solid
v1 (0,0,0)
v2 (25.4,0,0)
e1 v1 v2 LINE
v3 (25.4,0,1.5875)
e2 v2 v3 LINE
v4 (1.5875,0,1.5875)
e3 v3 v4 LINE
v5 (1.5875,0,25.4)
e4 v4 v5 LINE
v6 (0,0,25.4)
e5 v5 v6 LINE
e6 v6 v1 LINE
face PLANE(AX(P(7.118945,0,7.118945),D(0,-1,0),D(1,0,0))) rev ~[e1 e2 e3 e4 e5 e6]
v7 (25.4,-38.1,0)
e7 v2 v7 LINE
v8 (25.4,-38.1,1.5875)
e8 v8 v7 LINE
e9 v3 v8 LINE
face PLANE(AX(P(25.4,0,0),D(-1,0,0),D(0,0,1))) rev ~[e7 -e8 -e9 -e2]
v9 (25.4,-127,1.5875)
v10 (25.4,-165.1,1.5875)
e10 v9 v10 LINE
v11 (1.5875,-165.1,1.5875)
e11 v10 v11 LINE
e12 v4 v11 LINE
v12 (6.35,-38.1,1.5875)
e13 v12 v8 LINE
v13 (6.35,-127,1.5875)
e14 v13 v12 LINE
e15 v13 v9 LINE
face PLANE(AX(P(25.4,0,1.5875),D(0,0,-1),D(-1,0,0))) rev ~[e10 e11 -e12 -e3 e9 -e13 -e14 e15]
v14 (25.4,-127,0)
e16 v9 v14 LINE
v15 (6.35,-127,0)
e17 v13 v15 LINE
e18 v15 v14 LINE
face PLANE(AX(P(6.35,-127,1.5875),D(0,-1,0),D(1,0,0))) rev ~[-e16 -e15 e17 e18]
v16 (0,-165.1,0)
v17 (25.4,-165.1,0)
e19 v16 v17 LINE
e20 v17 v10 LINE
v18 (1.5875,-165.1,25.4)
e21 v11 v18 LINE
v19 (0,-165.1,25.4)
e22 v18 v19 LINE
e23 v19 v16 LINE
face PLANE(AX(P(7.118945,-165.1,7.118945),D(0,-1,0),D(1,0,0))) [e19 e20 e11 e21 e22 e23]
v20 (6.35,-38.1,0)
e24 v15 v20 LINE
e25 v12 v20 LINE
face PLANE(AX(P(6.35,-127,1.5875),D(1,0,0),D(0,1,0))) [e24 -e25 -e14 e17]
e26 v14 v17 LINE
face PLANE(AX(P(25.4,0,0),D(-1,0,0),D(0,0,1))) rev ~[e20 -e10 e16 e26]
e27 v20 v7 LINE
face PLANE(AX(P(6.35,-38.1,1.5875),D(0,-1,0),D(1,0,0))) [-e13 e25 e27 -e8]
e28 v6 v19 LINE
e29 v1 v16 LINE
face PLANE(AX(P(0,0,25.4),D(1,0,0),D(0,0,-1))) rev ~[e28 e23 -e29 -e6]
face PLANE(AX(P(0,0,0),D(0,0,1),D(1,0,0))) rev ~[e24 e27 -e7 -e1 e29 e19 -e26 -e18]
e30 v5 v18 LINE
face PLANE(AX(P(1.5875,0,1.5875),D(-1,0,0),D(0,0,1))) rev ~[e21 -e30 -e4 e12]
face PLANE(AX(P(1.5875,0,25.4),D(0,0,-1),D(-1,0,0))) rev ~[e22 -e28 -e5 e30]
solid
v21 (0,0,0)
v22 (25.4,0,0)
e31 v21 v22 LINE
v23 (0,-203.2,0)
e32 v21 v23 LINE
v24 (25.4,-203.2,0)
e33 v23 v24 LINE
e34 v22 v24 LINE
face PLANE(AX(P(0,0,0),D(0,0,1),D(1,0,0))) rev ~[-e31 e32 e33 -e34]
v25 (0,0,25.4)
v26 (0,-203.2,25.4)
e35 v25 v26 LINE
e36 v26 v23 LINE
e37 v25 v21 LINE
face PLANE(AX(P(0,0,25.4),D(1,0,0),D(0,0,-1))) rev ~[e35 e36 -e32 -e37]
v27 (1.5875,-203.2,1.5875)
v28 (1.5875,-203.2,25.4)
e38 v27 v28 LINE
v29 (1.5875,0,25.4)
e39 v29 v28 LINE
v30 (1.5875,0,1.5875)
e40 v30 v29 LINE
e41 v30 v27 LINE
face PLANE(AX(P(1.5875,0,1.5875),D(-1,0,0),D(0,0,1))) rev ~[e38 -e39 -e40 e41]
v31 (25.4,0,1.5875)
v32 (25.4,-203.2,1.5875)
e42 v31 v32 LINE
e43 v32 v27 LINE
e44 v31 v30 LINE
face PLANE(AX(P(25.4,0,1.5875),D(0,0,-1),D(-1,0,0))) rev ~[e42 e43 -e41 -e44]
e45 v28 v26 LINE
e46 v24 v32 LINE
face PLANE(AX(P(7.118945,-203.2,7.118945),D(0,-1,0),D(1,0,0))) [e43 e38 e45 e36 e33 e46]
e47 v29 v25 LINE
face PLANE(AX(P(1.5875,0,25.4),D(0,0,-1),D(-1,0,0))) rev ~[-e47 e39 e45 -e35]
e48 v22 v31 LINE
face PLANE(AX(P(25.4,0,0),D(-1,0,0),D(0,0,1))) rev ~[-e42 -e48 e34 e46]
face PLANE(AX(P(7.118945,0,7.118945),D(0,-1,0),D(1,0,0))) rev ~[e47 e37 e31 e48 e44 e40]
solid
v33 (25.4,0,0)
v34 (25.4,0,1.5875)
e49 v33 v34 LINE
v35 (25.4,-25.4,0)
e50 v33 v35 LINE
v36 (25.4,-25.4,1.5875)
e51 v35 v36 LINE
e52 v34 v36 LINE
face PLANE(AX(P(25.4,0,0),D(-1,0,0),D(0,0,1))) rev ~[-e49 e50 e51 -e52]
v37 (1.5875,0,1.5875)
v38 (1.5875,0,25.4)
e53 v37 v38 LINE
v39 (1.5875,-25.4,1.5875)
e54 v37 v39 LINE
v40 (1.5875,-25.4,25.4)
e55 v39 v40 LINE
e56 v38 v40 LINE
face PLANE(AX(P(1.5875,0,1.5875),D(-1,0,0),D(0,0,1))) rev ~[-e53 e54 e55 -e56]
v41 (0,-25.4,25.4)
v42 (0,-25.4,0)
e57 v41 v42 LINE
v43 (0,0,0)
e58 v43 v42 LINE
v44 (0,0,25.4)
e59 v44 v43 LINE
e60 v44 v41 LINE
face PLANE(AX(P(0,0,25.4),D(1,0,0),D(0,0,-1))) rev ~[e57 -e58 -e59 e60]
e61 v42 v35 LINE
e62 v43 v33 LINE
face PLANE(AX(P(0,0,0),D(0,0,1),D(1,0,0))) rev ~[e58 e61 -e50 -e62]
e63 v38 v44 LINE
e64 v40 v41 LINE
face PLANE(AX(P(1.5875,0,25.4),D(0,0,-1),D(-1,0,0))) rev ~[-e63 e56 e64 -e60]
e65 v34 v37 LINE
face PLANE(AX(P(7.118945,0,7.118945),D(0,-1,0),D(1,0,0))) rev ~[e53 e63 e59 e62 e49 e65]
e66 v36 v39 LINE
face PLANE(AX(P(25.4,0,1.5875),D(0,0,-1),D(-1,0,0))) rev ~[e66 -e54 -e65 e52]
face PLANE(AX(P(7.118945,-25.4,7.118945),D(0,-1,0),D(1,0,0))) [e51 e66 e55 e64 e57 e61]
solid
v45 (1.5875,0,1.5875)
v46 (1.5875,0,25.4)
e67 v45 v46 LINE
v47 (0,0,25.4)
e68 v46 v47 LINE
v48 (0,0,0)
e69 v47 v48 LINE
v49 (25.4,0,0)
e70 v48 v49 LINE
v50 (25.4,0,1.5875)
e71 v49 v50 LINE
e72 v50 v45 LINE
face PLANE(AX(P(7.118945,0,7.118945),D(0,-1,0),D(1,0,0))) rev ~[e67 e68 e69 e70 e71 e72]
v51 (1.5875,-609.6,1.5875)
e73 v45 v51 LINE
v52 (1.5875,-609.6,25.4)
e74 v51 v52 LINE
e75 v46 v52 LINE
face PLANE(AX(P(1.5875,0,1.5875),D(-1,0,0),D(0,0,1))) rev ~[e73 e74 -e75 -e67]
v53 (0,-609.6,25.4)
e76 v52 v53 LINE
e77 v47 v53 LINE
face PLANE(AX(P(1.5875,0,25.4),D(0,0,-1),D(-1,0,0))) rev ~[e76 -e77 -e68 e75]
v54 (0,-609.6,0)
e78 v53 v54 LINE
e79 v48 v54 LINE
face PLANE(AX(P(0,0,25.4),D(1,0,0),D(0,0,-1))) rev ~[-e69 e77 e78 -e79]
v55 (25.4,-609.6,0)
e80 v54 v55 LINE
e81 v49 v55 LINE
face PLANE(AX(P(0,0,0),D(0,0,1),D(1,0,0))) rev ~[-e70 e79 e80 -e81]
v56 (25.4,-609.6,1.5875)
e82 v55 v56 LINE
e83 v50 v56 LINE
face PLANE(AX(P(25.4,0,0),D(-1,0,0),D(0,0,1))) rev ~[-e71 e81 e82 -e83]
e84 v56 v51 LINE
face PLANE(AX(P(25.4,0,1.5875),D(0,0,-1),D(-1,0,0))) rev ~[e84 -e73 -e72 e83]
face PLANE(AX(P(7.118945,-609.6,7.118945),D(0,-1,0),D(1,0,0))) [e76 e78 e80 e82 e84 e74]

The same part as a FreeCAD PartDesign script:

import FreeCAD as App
import Part
import Sketcher
Q = App.Units.Quantity


def add_polygon(sketch, points):
    """Adds a closed chain of lines whose ends are joined by coincident constraints."""
    first, n = sketch.GeometryCount, len(points)
    for a, b in zip(points, points[1:] + points[:1]):
        sketch.addGeometry(Part.LineSegment(App.Vector(*a, 0), App.Vector(*b, 0)), False)
    for i in range(n):
        sketch.addConstraint(Sketcher.Constraint("Coincident", first + i, 2, first + (i + 1) % n, 1))

doc = App.newDocument("Part")
body = doc.addObject("PartDesign::Body", "Body")

sketch1 = doc.addObject("Sketcher::SketchObject", "Sketch")
body.addObject(sketch1)
sketch1.AttachmentSupport = (doc.XZ_Plane, [""])
sketch1.MapMode = "FlatFace"
add_polygon(sketch1, [(0, 25.4), (0, 0), (25.4, 0), (25.4, 1.6), (1.6, 1.6), (1.6, 25.4)])
sketch1.addConstraint(Sketcher.Constraint("Vertical", 0))
sketch1.addConstraint(Sketcher.Constraint("Horizontal", 1))
sketch1.addConstraint(Sketcher.Constraint("Vertical", 2))
sketch1.addConstraint(Sketcher.Constraint("Horizontal", 3))
sketch1.addConstraint(Sketcher.Constraint("Vertical", 4))
sketch1.addConstraint(Sketcher.Constraint("Horizontal", 5))
sketch1.addConstraint(Sketcher.Constraint("Coincident", 0, 2, -1, 1))
sketch1.addConstraint(Sketcher.Constraint("Equal", 1, 0))
sketch1.addConstraint(Sketcher.Constraint("Equal", 5, 2))
sketch1.addConstraint(Sketcher.Constraint("DistanceX", 1, 1, 1, 2, Q("1 in")))
sketch1.addConstraint(Sketcher.Constraint("DistanceX", 3, 2, 3, 1, Q("0.9375 in")))
pad1 = doc.addObject("PartDesign::Pad", "Pad")
body.addObject(pad1)
pad1.Profile = sketch1
pad1.Length = Q("8 in")
body2 = doc.addObject("PartDesign::Body", "Body001")

sketch2 = doc.addObject("Sketcher::SketchObject", "Sketch001")
body2.addObject(sketch2)
sketch2.AttachmentSupport = (doc.getObject("XZ_Plane001"), [""])
sketch2.MapMode = "FlatFace"
add_polygon(sketch2, [(0, 25.4), (0, 0), (25.4, 0), (25.4, 1.6), (1.6, 1.6), (1.6, 25.4)])
sketch2.addConstraint(Sketcher.Constraint("Vertical", 0))
sketch2.addConstraint(Sketcher.Constraint("Horizontal", 1))
sketch2.addConstraint(Sketcher.Constraint("Vertical", 2))
sketch2.addConstraint(Sketcher.Constraint("Horizontal", 3))
sketch2.addConstraint(Sketcher.Constraint("Vertical", 4))
sketch2.addConstraint(Sketcher.Constraint("Horizontal", 5))
sketch2.addConstraint(Sketcher.Constraint("Coincident", 0, 2, -1, 1))
sketch2.addConstraint(Sketcher.Constraint("Equal", 1, 0))
sketch2.addConstraint(Sketcher.Constraint("Equal", 5, 2))
sketch2.addConstraint(Sketcher.Constraint("DistanceX", 1, 1, 1, 2, Q("1 in")))
sketch2.addConstraint(Sketcher.Constraint("DistanceX", 3, 2, 3, 1, Q("0.9375 in")))
pad2 = doc.addObject("PartDesign::Pad", "Pad001")
body2.addObject(pad2)
pad2.Profile = sketch2
pad2.Length = Q("24 in")
body3 = doc.addObject("PartDesign::Body", "Body002")

sketch3 = doc.addObject("Sketcher::SketchObject", "Sketch002")
body3.addObject(sketch3)
sketch3.AttachmentSupport = (doc.getObject("XZ_Plane002"), [""])
sketch3.MapMode = "FlatFace"
add_polygon(sketch3, [(0, 25.4), (0, 0), (25.4, 0), (25.4, 1.6), (1.6, 1.6), (1.6, 25.4)])
sketch3.addConstraint(Sketcher.Constraint("Vertical", 0))
sketch3.addConstraint(Sketcher.Constraint("Horizontal", 1))
sketch3.addConstraint(Sketcher.Constraint("Vertical", 2))
sketch3.addConstraint(Sketcher.Constraint("Horizontal", 3))
sketch3.addConstraint(Sketcher.Constraint("Vertical", 4))
sketch3.addConstraint(Sketcher.Constraint("Horizontal", 5))
sketch3.addConstraint(Sketcher.Constraint("Coincident", 0, 2, -1, 1))
sketch3.addConstraint(Sketcher.Constraint("Equal", 1, 0))
sketch3.addConstraint(Sketcher.Constraint("Equal", 5, 2))
sketch3.addConstraint(Sketcher.Constraint("DistanceX", 1, 1, 1, 2, Q("1 in")))
sketch3.addConstraint(Sketcher.Constraint("DistanceX", 3, 2, 3, 1, Q("0.9375 in")))
pad3 = doc.addObject("PartDesign::Pad", "Pad002")
body3.addObject(pad3)
pad3.Profile = sketch3
pad3.Length = Q("1 in")
body4 = doc.addObject("PartDesign::Body", "Body003")

sketch4 = doc.addObject("Sketcher::SketchObject", "Sketch003")
body4.addObject(sketch4)
sketch4.AttachmentSupport = (doc.getObject("XZ_Plane003"), [""])
sketch4.MapMode = "FlatFace"
add_polygon(sketch4, [(0, 25.4), (0, 0), (25.4, 0), (25.4, 1.6), (1.6, 1.6), (1.6, 25.4)])
sketch4.addConstraint(Sketcher.Constraint("Vertical", 0))
sketch4.addConstraint(Sketcher.Constraint("Horizontal", 1))
sketch4.addConstraint(Sketcher.Constraint("Vertical", 2))
sketch4.addConstraint(Sketcher.Constraint("Horizontal", 3))
sketch4.addConstraint(Sketcher.Constraint("Vertical", 4))
sketch4.addConstraint(Sketcher.Constraint("Horizontal", 5))
sketch4.addConstraint(Sketcher.Constraint("Coincident", 0, 2, -1, 1))
sketch4.addConstraint(Sketcher.Constraint("Equal", 1, 0))
sketch4.addConstraint(Sketcher.Constraint("Equal", 5, 2))
sketch4.addConstraint(Sketcher.Constraint("DistanceX", 1, 1, 1, 2, Q("1 in")))
sketch4.addConstraint(Sketcher.Constraint("DistanceX", 3, 2, 3, 1, Q("0.9375 in")))
pad4 = doc.addObject("PartDesign::Pad", "Pad003")
body4.addObject(pad4)
pad4.Profile = sketch4
pad4.Length = Q("6.5 in")

sketch5 = doc.addObject("Sketcher::SketchObject", "Sketch004")
body4.addObject(sketch5)
sketch5.AttachmentSupport = (doc.getObject("XY_Plane003"), [""])
sketch5.MapMode = "FlatFace"
sketch5.AttachmentOffset = App.Placement(App.Vector(0, 0, 0.0625 * 25.4), App.Rotation())
add_polygon(sketch5, [(6, -38), (6, -127), (25, -127), (25, -38)])
sketch5.addConstraint(Sketcher.Constraint("Vertical", 0))
sketch5.addConstraint(Sketcher.Constraint("Horizontal", 1))
sketch5.addConstraint(Sketcher.Constraint("Vertical", 2))
sketch5.addConstraint(Sketcher.Constraint("Horizontal", 3))
sketch5.addConstraint(Sketcher.Constraint("DistanceY", 0, 2, 0, 1, Q("3.5 in")))
sketch5.addConstraint(Sketcher.Constraint("DistanceY", 0, 2, -1, 1, Q("5 in")))
sketch5.addConstraint(Sketcher.Constraint("DistanceX", -1, 1, 1, 2, Q("1 in")))
sketch5.addConstraint(Sketcher.Constraint("DistanceX", 1, 1, 1, 2, Q("0.75 in")))
pocket1 = doc.addObject("PartDesign::Pocket", "Pocket")
body4.addObject(pocket1)
pocket1.Profile = sketch5
pocket1.Length = Q("1 in")
body5 = doc.addObject("PartDesign::Body", "Body004")

sketch6 = doc.addObject("Sketcher::SketchObject", "Sketch005")
body5.addObject(sketch6)
sketch6.AttachmentSupport = (doc.getObject("XZ_Plane004"), [""])
sketch6.MapMode = "FlatFace"
add_polygon(sketch6, [(0, 25.4), (0, 0), (25.4, 0), (25.4, 1.6), (1.6, 1.6), (1.6, 25.4)])
sketch6.addConstraint(Sketcher.Constraint("Vertical", 0))
sketch6.addConstraint(Sketcher.Constraint("Horizontal", 1))
sketch6.addConstraint(Sketcher.Constraint("Vertical", 2))
sketch6.addConstraint(Sketcher.Constraint("Horizontal", 3))
sketch6.addConstraint(Sketcher.Constraint("Vertical", 4))
sketch6.addConstraint(Sketcher.Constraint("Horizontal", 5))
sketch6.addConstraint(Sketcher.Constraint("Coincident", 0, 2, -1, 1))
sketch6.addConstraint(Sketcher.Constraint("Equal", 1, 0))
sketch6.addConstraint(Sketcher.Constraint("Equal", 5, 2))
sketch6.addConstraint(Sketcher.Constraint("DistanceX", 1, 1, 1, 2, Q("1 in")))
sketch6.addConstraint(Sketcher.Constraint("DistanceX", 3, 2, 3, 1, Q("0.9375 in")))
pad5 = doc.addObject("PartDesign::Pad", "Pad004")
body5.addObject(pad5)
pad5.Profile = sketch6
pad5.Length = Q("8 in")
body.Visibility = False

doc.recompute()
